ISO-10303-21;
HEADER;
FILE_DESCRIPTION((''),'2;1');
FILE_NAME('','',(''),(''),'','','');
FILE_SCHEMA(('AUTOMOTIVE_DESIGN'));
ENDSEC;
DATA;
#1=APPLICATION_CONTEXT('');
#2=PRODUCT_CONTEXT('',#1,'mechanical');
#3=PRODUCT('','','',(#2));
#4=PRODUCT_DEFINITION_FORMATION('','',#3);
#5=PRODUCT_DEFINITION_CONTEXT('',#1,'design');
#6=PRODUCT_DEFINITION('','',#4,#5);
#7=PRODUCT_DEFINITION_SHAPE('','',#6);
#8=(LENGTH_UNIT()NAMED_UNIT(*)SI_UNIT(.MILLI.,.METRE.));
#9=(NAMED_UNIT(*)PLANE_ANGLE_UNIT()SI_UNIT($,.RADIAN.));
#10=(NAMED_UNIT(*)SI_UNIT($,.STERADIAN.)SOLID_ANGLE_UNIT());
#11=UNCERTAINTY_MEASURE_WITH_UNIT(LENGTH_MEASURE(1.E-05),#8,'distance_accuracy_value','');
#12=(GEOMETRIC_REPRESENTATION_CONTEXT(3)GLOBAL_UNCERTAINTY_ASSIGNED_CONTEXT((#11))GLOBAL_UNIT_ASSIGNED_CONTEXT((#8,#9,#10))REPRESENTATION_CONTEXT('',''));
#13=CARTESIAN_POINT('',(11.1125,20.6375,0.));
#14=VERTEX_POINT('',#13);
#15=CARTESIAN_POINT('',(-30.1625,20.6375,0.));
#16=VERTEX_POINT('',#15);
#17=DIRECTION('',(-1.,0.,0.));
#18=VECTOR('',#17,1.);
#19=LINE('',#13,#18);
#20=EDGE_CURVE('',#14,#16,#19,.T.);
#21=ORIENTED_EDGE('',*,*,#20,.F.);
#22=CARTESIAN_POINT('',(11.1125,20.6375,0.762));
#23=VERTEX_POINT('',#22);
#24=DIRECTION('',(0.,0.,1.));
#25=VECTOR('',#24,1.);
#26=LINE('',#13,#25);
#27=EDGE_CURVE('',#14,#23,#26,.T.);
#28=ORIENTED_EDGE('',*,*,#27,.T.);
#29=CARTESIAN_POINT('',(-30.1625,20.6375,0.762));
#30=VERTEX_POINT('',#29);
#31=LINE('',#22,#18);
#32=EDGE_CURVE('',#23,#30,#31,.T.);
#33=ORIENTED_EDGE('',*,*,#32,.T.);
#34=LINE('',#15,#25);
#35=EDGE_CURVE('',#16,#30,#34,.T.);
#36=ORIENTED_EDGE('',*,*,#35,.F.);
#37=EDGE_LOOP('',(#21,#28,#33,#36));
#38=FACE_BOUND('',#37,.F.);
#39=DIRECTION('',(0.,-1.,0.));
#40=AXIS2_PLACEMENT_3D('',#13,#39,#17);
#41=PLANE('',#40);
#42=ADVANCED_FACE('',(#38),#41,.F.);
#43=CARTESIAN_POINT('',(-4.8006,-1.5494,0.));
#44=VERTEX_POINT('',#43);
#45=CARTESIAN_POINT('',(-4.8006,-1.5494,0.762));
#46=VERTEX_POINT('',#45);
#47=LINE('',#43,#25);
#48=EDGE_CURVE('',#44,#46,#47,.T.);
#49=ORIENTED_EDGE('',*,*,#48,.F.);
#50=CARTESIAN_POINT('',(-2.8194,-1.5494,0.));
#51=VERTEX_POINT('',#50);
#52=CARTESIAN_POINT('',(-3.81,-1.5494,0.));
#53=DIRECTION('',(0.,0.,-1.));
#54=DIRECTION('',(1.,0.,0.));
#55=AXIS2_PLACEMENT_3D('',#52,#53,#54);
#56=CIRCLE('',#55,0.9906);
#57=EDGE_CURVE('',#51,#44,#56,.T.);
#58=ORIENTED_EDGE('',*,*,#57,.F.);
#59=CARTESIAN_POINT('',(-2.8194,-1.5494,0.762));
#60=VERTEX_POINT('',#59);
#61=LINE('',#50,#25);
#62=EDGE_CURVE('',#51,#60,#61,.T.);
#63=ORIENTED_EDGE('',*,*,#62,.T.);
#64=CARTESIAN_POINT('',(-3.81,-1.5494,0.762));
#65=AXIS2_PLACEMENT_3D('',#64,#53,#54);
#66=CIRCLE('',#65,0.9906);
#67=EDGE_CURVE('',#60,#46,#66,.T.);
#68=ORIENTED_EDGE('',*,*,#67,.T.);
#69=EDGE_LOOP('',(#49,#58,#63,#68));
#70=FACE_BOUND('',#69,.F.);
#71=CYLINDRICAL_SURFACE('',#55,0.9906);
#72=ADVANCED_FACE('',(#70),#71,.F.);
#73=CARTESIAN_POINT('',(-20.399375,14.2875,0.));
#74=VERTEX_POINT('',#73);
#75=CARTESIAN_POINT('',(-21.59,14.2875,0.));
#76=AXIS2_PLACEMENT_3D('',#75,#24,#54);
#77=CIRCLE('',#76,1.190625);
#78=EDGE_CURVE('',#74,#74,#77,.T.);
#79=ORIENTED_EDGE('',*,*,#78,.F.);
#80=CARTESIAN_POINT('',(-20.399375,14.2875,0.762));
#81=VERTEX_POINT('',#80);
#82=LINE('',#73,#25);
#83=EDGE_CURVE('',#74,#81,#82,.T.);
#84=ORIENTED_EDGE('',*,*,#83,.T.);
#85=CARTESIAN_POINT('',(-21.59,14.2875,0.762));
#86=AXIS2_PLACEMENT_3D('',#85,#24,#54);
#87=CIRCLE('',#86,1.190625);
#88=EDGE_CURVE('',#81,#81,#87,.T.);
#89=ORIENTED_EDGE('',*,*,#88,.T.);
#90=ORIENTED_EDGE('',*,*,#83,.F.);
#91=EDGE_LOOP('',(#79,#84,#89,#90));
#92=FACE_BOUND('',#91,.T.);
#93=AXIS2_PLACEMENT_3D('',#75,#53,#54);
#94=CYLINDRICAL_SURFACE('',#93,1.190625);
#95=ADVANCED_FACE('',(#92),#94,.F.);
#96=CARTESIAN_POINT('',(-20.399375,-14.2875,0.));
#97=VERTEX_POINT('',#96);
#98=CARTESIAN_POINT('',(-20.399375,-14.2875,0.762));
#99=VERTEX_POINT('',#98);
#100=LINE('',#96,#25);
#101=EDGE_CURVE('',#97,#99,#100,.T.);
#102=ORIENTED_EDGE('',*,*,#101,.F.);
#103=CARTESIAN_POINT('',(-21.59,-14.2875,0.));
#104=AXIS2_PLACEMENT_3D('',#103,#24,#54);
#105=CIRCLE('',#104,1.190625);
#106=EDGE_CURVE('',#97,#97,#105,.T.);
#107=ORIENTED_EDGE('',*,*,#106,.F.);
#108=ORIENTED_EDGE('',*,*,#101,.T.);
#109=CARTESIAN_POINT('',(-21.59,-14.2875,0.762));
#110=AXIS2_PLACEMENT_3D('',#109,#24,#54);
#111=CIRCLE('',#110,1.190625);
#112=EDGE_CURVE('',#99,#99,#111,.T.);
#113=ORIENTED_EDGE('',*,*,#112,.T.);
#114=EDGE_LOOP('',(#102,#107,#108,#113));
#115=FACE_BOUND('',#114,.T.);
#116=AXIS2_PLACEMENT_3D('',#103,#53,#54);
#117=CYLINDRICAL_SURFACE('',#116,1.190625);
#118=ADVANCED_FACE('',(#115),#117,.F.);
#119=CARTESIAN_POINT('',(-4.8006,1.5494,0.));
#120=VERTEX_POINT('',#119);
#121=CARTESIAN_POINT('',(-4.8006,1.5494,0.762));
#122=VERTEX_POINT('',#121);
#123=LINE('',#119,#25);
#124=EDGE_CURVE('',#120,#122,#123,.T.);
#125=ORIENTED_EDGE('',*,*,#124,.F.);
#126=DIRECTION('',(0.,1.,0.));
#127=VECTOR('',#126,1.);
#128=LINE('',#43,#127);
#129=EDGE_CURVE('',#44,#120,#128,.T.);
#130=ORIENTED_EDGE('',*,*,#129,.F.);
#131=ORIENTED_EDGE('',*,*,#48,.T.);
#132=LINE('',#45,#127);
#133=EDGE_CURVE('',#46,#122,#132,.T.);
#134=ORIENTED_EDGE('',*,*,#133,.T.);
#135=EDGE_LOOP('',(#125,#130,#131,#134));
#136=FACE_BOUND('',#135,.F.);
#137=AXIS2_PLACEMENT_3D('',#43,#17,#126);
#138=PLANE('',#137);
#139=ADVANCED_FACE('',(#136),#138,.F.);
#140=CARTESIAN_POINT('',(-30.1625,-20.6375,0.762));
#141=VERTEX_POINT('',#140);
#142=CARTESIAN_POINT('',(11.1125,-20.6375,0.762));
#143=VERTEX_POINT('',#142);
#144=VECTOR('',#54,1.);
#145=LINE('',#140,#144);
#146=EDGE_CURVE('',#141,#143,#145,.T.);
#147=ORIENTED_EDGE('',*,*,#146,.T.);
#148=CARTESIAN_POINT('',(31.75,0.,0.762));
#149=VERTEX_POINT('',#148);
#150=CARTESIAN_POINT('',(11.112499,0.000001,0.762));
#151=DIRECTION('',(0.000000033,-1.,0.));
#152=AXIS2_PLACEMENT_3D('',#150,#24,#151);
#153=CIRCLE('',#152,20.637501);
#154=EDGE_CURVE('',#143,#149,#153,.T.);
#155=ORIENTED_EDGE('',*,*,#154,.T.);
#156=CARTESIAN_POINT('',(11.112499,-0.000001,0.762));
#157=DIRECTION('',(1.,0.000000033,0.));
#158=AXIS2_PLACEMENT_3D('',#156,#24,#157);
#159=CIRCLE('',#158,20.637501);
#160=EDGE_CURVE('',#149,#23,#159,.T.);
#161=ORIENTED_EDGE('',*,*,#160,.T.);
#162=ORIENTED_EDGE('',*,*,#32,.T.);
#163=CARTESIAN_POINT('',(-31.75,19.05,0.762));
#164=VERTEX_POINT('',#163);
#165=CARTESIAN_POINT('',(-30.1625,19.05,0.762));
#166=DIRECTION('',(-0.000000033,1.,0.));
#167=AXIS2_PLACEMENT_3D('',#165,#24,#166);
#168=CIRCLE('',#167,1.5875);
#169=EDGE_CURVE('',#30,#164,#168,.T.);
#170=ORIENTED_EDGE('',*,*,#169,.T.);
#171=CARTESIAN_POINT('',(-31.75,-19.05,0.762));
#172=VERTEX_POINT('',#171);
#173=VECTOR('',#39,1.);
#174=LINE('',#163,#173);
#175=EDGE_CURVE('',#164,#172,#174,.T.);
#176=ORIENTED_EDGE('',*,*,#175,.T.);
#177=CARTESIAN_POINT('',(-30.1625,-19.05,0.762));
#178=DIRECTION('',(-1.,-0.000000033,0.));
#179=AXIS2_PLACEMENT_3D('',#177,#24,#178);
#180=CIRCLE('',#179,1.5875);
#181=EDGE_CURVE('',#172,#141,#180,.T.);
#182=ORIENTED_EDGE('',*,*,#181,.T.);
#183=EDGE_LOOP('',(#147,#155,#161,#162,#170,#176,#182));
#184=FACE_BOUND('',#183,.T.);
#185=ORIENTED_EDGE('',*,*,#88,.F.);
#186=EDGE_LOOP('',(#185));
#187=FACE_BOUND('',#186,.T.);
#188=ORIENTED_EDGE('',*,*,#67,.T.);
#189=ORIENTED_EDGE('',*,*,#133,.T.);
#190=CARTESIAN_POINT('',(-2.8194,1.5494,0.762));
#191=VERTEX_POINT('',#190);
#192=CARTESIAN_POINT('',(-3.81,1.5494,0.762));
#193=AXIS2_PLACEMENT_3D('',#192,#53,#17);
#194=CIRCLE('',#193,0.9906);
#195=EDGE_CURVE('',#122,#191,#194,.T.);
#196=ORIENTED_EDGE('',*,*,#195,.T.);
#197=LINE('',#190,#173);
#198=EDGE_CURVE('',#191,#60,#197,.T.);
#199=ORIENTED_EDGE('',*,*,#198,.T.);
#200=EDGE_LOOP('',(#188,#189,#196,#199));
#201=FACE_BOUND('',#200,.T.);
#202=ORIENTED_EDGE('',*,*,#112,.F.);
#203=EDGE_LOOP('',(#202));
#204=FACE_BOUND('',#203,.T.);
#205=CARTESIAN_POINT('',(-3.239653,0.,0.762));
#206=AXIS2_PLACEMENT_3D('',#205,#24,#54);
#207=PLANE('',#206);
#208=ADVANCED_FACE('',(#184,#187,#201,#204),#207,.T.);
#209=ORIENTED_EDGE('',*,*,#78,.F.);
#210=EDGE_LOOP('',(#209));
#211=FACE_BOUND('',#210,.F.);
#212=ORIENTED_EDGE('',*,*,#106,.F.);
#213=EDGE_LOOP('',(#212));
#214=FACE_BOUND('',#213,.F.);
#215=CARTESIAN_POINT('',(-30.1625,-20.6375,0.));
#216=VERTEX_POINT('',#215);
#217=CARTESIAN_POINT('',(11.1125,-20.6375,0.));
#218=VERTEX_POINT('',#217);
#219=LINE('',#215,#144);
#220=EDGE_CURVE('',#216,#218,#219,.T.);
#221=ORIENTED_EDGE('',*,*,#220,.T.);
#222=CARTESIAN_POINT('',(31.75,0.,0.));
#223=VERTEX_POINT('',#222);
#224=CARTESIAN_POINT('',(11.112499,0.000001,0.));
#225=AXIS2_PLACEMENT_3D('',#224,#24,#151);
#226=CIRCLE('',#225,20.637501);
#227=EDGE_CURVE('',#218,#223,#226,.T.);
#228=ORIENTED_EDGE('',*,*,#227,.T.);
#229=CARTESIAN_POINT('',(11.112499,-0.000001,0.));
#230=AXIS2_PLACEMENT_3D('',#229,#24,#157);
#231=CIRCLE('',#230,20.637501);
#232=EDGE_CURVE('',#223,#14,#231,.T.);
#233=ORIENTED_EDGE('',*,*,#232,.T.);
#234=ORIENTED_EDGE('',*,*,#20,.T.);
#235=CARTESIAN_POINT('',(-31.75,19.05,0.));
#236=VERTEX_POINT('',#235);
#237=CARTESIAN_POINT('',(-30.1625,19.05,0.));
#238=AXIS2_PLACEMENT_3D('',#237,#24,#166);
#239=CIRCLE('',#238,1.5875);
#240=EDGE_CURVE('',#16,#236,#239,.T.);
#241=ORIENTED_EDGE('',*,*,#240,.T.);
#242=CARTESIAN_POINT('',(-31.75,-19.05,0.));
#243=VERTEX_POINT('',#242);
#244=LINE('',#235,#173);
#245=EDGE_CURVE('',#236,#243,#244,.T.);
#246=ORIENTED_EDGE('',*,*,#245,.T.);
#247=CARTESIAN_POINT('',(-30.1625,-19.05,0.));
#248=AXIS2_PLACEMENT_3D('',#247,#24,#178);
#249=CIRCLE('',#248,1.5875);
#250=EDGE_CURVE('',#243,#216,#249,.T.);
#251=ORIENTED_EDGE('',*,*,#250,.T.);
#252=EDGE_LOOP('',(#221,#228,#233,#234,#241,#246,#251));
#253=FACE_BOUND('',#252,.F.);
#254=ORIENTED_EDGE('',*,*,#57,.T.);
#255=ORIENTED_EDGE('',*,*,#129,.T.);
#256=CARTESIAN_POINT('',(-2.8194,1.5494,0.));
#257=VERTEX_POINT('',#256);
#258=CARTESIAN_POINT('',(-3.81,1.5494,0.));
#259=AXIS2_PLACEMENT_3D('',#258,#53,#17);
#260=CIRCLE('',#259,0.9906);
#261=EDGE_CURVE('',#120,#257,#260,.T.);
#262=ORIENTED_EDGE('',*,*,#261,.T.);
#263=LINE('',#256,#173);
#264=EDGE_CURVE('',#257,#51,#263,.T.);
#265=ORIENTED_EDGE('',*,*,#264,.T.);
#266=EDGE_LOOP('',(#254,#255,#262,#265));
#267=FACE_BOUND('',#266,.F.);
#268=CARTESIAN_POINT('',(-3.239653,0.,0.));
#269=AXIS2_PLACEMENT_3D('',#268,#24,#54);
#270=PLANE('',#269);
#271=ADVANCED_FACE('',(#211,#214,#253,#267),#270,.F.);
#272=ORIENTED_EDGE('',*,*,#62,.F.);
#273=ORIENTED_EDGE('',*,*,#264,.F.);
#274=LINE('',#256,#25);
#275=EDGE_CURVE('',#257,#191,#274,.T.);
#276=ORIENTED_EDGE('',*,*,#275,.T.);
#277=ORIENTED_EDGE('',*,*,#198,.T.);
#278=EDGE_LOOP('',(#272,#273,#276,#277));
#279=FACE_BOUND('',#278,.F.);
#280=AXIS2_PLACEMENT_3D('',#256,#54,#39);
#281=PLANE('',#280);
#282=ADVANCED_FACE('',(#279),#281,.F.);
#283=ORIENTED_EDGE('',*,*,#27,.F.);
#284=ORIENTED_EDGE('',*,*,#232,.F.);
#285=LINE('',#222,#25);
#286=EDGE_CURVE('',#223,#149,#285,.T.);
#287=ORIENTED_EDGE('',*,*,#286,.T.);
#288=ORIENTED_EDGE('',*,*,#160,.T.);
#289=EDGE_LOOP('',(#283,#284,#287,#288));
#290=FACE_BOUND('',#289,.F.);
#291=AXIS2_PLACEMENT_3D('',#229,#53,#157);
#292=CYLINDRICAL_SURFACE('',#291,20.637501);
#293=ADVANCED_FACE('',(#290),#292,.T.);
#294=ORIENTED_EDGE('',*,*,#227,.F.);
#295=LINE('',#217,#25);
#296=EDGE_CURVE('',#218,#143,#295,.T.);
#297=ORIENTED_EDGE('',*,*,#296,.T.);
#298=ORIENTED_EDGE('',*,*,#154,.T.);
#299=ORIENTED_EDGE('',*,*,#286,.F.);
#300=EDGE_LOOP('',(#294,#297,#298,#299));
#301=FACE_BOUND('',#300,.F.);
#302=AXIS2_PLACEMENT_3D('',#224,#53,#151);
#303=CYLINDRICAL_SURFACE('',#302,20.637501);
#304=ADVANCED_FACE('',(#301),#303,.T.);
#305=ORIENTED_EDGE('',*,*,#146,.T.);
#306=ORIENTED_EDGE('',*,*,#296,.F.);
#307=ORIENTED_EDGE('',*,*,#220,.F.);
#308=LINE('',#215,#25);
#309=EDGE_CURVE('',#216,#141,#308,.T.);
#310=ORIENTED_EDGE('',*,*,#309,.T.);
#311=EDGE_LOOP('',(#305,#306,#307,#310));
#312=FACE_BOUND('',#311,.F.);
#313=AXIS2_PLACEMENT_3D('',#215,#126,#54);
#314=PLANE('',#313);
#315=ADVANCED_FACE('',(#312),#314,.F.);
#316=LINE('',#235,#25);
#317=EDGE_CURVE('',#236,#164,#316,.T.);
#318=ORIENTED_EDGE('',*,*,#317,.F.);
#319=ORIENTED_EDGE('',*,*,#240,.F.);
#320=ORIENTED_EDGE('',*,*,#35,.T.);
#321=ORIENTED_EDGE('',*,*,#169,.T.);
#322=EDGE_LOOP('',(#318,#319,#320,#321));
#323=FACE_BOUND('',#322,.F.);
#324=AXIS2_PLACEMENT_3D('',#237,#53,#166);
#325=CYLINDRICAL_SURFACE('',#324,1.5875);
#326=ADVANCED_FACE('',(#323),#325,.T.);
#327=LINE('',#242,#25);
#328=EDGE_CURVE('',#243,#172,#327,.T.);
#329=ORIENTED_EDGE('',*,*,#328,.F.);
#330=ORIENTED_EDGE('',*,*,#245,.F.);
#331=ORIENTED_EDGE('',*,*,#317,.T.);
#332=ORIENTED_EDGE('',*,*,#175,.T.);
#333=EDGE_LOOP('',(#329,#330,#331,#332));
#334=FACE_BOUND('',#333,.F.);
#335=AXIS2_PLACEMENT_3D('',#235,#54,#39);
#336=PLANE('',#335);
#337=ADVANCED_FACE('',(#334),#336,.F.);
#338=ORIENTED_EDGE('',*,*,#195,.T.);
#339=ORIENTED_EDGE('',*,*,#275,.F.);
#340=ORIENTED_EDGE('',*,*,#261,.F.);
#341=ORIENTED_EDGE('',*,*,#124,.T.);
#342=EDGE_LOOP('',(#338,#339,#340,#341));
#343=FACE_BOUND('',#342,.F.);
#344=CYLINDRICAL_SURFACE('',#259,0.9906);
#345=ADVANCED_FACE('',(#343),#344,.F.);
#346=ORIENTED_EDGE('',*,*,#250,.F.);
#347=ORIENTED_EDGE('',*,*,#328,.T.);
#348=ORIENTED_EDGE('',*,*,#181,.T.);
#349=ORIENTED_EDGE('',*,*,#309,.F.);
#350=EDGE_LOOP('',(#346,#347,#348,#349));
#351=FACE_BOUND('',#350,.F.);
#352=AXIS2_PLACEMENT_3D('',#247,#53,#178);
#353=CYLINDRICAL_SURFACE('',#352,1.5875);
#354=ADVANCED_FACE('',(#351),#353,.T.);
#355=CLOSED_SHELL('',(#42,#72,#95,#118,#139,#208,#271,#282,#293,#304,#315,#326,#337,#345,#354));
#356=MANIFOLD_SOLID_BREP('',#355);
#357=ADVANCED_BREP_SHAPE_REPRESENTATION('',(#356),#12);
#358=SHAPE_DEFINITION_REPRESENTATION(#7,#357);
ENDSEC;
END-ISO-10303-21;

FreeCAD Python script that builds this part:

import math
import FreeCAD as App
import Part
import Sketcher
from FreeCAD import Vector
Q = App.Units.Quantity

doc = App.newDocument("Part")
body = doc.addObject("PartDesign::Body", "Body")

sketch1 = body.newObject("Sketcher::SketchObject", "Sketch")
sketch1.AttachmentSupport = (doc.getObject("XY_Plane"), [""])
sketch1.MapMode = "FlatFace"
sketch1.addGeometry(Part.LineSegment(Vector(-30.1625, -20.6375, 0), Vector(11.1125, -20.6375, 0)), False)
sketch1.addGeometry(Part.ArcOfCircle(Part.Circle(Vector(11.112499, 0.000001, 0), Vector(0, 0, 1), 20.637501), math.radians(-89.999998), math.radians(-0.000002)), False)
sketch1.addGeometry(Part.ArcOfCircle(Part.Circle(Vector(11.112499, -0.000001, 0), Vector(0, 0, 1), 20.637501), math.radians(0.000002), math.radians(89.999998)), False)
sketch1.addGeometry(Part.LineSegment(Vector(11.1125, 20.6375, 0), Vector(-30.1625, 20.6375, 0)), False)
sketch1.addGeometry(Part.ArcOfCircle(Part.Circle(Vector(-30.1625, 19.05, 0), Vector(0, 0, 1), 1.5875), math.radians(90.000002), math.radians(179.999998)), False)
sketch1.addGeometry(Part.LineSegment(Vector(-31.75, 19.05, 0), Vector(-31.75, -19.05, 0)), False)
sketch1.addGeometry(Part.ArcOfCircle(Part.Circle(Vector(-30.1625, -19.05, 0), Vector(0, 0, 1), 1.5875), math.radians(-179.999998), math.radians(-90.000002)), False)
sketch1.addGeometry(Part.Circle(Vector(-21.59, -14.2875, 0), Vector(0, 0, 1), 1.190625), False)
sketch1.addGeometry(Part.Circle(Vector(-21.59, 14.2875, 0), Vector(0, 0, 1), 1.190625), False)
sketch1.addGeometry(Part.ArcOfCircle(Part.Circle(Vector(-3.81, 1.5494, 0), Vector(0, 0, 1), 0.9906), math.radians(0), math.radians(180)), False)
sketch1.addGeometry(Part.LineSegment(Vector(-2.8194, 1.5494, 0), Vector(-2.8194, -1.5494, 0)), False)
sketch1.addGeometry(Part.ArcOfCircle(Part.Circle(Vector(-3.81, -1.5494, 0), Vector(0, 0, 1), 0.9906), math.radians(180), math.radians(360)), False)
sketch1.addGeometry(Part.LineSegment(Vector(-4.8006, -1.5494, 0), Vector(-4.8006, 1.5494, 0)), False)
sketch1.addConstraint(Sketcher.Constraint("Tangent", 0, 2, 1, 1))
sketch1.addConstraint(Sketcher.Constraint("Tangent", 1, 2, 2, 1))
sketch1.addConstraint(Sketcher.Constraint("Tangent", 2, 2, 3, 1))
sketch1.addConstraint(Sketcher.Constraint("Tangent", 3, 2, 4, 1))
sketch1.addConstraint(Sketcher.Constraint("Tangent", 4, 2, 5, 1))
sketch1.addConstraint(Sketcher.Constraint("Tangent", 5, 2, 6, 1))
sketch1.addConstraint(Sketcher.Constraint("Tangent", 6, 2, 0, 1))
sketch1.addConstraint(Sketcher.Constraint("Tangent", 9, 1, 10, 1))
sketch1.addConstraint(Sketcher.Constraint("Tangent", 10, 2, 11, 2))
sketch1.addConstraint(Sketcher.Constraint("Tangent", 11, 1, 12, 1))
sketch1.addConstraint(Sketcher.Constraint("Tangent", 12, 2, 9, 2))
sketch1.addConstraint(Sketcher.Constraint("Horizontal", 0))
sketch1.addConstraint(Sketcher.Constraint("Horizontal", 3))
sketch1.addConstraint(Sketcher.Constraint("Vertical", 5))
sketch1.addConstraint(Sketcher.Constraint("Vertical", 10))
sketch1.addConstraint(Sketcher.Constraint("Vertical", 12))
sketch1.addConstraint(Sketcher.Constraint("Equal", 1, 2))
sketch1.addConstraint(Sketcher.Constraint("Equal", 4, 6))
sketch1.addConstraint(Sketcher.Constraint("Equal", 7, 8))
sketch1.addConstraint(Sketcher.Constraint("Symmetric", 7, 3, 8, 3, -1))
sketch1.addConstraint(Sketcher.Constraint("PointOnObject", 1, 3, -1))
sketch1.addConstraint(Sketcher.Constraint("PointOnObject", 1, 2, -1))
sketch1.addConstraint(Sketcher.Constraint("Diameter", 7, Q("0.09375 in")))
sketch1.addConstraint(Sketcher.Constraint("DistanceY", 5, 2, 5, 1, Q("1.5 in")))
sketch1.addConstraint(Sketcher.Constraint("Radius", 1, Q("0.8125 in")))
sketch1.addConstraint(Sketcher.Constraint("Radius", 9, Q("0.039 in")))
sketch1.addConstraint(Sketcher.Constraint("DistanceX", 8, 3, 9, 3, Q("0.7 in")))
sketch1.addConstraint(Sketcher.Constraint("DistanceX", 9, 3, 1, 2, Q("1.4 in")))
sketch1.addConstraint(Sketcher.Constraint("DistanceX", 4, 2, 8, 3, Q("0.4 in")))
sketch1.addConstraint(Sketcher.Constraint("DistanceY", 10, 2, 10, 1, Q("0.122 in")))
sketch1.addConstraint(Sketcher.Constraint("DistanceX", 7, 3, -1, 1, Q("0.85 in")))
sketch1.addConstraint(Sketcher.Constraint("DistanceY", 0, 2, 7, 3, Q("0.25 in")))
sketch1.addConstraint(Sketcher.Constraint("DistanceY", -1, 1, 9, 3, Q("0.061 in")))
pad1 = body.newObject("PartDesign::Pad", "Pad")
pad1.Profile = sketch1
pad1.Length = Q("0.03 in")

doc.recompute()
